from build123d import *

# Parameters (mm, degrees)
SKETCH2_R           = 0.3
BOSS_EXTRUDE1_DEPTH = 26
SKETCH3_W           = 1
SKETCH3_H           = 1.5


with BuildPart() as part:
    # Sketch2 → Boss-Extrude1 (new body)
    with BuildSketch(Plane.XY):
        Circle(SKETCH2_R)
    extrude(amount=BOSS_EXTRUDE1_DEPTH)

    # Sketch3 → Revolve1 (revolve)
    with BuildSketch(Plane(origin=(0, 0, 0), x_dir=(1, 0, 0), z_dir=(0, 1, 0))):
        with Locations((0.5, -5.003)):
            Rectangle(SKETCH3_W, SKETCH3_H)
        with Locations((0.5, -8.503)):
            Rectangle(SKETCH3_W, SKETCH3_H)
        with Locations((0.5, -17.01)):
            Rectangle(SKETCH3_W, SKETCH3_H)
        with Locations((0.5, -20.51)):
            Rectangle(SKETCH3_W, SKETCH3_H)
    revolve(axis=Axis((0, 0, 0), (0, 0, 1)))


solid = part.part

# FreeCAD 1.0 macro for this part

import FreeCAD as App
import Part
import Sketcher

V = App.Vector

doc = App.newDocument("Part")
body = doc.addObject("PartDesign::Body", "Body")

# Sketch on XY plane
sketch1 = body.newObject("Sketcher::SketchObject", "Sketch")
sketch1.AttachmentSupport = (doc.getObject("XY_Plane"), [""])
sketch1.MapMode = "FlatFace"
sketch1.addGeometry(Part.Circle(V(0, 0, 0), V(0, 0, 1), 0.3), False)
sketch1.addConstraint([
    Sketcher.Constraint("Coincident", 0, 3, -1, 1),
    Sketcher.Constraint("Diameter", 0, 0.6),
])
pad1 = body.newObject("PartDesign::Pad", "Pad")
pad1.Profile = sketch1
pad1.Length = 26

# Sketch on XZ plane
sketch2 = body.newObject("Sketcher::SketchObject", "Sketch001")
sketch2.AttachmentSupport = (doc.getObject("XZ_Plane"), [""])
sketch2.MapMode = "FlatFace"
sketch2.addGeometry([
    Part.LineSegment(V(0, 4.3, 0), V(0, 5.8, 0)),  # 0
    Part.LineSegment(V(0, 5.8, 0), V(1, 5.8, 0)),  # 1
    Part.LineSegment(V(1, 5.8, 0), V(1, 4.3, 0)),  # 2
    Part.LineSegment(V(1, 4.3, 0), V(0, 4.3, 0)),  # 3
    Part.LineSegment(V(0, 7.8, 0), V(0, 9.3, 0)),  # 4
    Part.LineSegment(V(0, 9.3, 0), V(1, 9.3, 0)),  # 5
    Part.LineSegment(V(1, 9.3, 0), V(1, 7.8, 0)),  # 6
    Part.LineSegment(V(1, 7.8, 0), V(0, 7.8, 0)),  # 7
    Part.LineSegment(V(0, 16.3, 0), V(0, 17.8, 0)),  # 8
    Part.LineSegment(V(0, 17.8, 0), V(1, 17.8, 0)),  # 9
    Part.LineSegment(V(1, 17.8, 0), V(1, 16.3, 0)),  # 10
    Part.LineSegment(V(1, 16.3, 0), V(0, 16.3, 0)),  # 11
    Part.LineSegment(V(0, 19.8, 0), V(0, 21.3, 0)),  # 12
    Part.LineSegment(V(0, 21.3, 0), V(1, 21.3, 0)),  # 13
    Part.LineSegment(V(1, 21.3, 0), V(1, 19.8, 0)),  # 14
    Part.LineSegment(V(1, 19.8, 0), V(0, 19.8, 0)),  # 15
], False)
sketch2.addConstraint([
    Sketcher.Constraint("Coincident", 0, 2, 1, 1),
    Sketcher.Constraint("Coincident", 1, 2, 2, 1),
    Sketcher.Constraint("Coincident", 2, 2, 3, 1),
    Sketcher.Constraint("Coincident", 3, 2, 0, 1),
    Sketcher.Constraint("Coincident", 4, 2, 5, 1),
    Sketcher.Constraint("Coincident", 5, 2, 6, 1),
    Sketcher.Constraint("Coincident", 6, 2, 7, 1),
    Sketcher.Constraint("Coincident", 7, 2, 4, 1),
    Sketcher.Constraint("Coincident", 8, 2, 9, 1),
    Sketcher.Constraint("Coincident", 9, 2, 10, 1),
    Sketcher.Constraint("Coincident", 10, 2, 11, 1),
    Sketcher.Constraint("Coincident", 11, 2, 8, 1),
    Sketcher.Constraint("Coincident", 12, 2, 13, 1),
    Sketcher.Constraint("Coincident", 13, 2, 14, 1),
    Sketcher.Constraint("Coincident", 14, 2, 15, 1),
    Sketcher.Constraint("Coincident", 15, 2, 12, 1),
    Sketcher.Constraint("Vertical", 0),
    Sketcher.Constraint("Horizontal", 1),
    Sketcher.Constraint("Vertical", 2),
    Sketcher.Constraint("Horizontal", 3),
    Sketcher.Constraint("Vertical", 4),
    Sketcher.Constraint("Horizontal", 5),
    Sketcher.Constraint("Vertical", 6),
    Sketcher.Constraint("Horizontal", 7),
    Sketcher.Constraint("Vertical", 8),
    Sketcher.Constraint("Horizontal", 9),
    Sketcher.Constraint("Vertical", 10),
    Sketcher.Constraint("Horizontal", 11),
    Sketcher.Constraint("Vertical", 12),
    Sketcher.Constraint("Horizontal", 13),
    Sketcher.Constraint("Vertical", 14),
    Sketcher.Constraint("Horizontal", 15),
    Sketcher.Constraint("PointOnObject", 0, 2, -2),
    Sketcher.Constraint("PointOnObject", 4, 2, -2),
    Sketcher.Constraint("PointOnObject", 8, 2, -2),
    Sketcher.Constraint("PointOnObject", 12, 2, -2),
    Sketcher.Constraint("Vertical", 2, 2, 5, 2),
    Sketcher.Constraint("Vertical", 6, 2, 9, 2),
    Sketcher.Constraint("Vertical", 10, 2, 13, 2),
    Sketcher.Constraint("Equal", 2, 4),
    Sketcher.Constraint("Equal", 6, 8),
    Sketcher.Constraint("Equal", 10, 12),
    Sketcher.Constraint("DistanceX", 1, 1, 1, 2, 1.0),
    Sketcher.Constraint("DistanceY", 0, 1, 0, 2, 1.5),
    Sketcher.Constraint("DistanceY", 3, 2, 4, 2, 5.0),
    Sketcher.Constraint("DistanceY", 11, 2, 12, 2, 5.0),
    Sketcher.Constraint("DistanceY", -1, 1, 8, 2, 17.76),
    Sketcher.Constraint("DistanceY", -1, 1, 0, 2, 5.753),
])
revolution = body.newObject("PartDesign::Revolution", "Revolution")
revolution.Profile = sketch2
revolution.ReferenceAxis = (sketch2, ["V_Axis"])
revolution.Angle = 360

doc.recompute()
